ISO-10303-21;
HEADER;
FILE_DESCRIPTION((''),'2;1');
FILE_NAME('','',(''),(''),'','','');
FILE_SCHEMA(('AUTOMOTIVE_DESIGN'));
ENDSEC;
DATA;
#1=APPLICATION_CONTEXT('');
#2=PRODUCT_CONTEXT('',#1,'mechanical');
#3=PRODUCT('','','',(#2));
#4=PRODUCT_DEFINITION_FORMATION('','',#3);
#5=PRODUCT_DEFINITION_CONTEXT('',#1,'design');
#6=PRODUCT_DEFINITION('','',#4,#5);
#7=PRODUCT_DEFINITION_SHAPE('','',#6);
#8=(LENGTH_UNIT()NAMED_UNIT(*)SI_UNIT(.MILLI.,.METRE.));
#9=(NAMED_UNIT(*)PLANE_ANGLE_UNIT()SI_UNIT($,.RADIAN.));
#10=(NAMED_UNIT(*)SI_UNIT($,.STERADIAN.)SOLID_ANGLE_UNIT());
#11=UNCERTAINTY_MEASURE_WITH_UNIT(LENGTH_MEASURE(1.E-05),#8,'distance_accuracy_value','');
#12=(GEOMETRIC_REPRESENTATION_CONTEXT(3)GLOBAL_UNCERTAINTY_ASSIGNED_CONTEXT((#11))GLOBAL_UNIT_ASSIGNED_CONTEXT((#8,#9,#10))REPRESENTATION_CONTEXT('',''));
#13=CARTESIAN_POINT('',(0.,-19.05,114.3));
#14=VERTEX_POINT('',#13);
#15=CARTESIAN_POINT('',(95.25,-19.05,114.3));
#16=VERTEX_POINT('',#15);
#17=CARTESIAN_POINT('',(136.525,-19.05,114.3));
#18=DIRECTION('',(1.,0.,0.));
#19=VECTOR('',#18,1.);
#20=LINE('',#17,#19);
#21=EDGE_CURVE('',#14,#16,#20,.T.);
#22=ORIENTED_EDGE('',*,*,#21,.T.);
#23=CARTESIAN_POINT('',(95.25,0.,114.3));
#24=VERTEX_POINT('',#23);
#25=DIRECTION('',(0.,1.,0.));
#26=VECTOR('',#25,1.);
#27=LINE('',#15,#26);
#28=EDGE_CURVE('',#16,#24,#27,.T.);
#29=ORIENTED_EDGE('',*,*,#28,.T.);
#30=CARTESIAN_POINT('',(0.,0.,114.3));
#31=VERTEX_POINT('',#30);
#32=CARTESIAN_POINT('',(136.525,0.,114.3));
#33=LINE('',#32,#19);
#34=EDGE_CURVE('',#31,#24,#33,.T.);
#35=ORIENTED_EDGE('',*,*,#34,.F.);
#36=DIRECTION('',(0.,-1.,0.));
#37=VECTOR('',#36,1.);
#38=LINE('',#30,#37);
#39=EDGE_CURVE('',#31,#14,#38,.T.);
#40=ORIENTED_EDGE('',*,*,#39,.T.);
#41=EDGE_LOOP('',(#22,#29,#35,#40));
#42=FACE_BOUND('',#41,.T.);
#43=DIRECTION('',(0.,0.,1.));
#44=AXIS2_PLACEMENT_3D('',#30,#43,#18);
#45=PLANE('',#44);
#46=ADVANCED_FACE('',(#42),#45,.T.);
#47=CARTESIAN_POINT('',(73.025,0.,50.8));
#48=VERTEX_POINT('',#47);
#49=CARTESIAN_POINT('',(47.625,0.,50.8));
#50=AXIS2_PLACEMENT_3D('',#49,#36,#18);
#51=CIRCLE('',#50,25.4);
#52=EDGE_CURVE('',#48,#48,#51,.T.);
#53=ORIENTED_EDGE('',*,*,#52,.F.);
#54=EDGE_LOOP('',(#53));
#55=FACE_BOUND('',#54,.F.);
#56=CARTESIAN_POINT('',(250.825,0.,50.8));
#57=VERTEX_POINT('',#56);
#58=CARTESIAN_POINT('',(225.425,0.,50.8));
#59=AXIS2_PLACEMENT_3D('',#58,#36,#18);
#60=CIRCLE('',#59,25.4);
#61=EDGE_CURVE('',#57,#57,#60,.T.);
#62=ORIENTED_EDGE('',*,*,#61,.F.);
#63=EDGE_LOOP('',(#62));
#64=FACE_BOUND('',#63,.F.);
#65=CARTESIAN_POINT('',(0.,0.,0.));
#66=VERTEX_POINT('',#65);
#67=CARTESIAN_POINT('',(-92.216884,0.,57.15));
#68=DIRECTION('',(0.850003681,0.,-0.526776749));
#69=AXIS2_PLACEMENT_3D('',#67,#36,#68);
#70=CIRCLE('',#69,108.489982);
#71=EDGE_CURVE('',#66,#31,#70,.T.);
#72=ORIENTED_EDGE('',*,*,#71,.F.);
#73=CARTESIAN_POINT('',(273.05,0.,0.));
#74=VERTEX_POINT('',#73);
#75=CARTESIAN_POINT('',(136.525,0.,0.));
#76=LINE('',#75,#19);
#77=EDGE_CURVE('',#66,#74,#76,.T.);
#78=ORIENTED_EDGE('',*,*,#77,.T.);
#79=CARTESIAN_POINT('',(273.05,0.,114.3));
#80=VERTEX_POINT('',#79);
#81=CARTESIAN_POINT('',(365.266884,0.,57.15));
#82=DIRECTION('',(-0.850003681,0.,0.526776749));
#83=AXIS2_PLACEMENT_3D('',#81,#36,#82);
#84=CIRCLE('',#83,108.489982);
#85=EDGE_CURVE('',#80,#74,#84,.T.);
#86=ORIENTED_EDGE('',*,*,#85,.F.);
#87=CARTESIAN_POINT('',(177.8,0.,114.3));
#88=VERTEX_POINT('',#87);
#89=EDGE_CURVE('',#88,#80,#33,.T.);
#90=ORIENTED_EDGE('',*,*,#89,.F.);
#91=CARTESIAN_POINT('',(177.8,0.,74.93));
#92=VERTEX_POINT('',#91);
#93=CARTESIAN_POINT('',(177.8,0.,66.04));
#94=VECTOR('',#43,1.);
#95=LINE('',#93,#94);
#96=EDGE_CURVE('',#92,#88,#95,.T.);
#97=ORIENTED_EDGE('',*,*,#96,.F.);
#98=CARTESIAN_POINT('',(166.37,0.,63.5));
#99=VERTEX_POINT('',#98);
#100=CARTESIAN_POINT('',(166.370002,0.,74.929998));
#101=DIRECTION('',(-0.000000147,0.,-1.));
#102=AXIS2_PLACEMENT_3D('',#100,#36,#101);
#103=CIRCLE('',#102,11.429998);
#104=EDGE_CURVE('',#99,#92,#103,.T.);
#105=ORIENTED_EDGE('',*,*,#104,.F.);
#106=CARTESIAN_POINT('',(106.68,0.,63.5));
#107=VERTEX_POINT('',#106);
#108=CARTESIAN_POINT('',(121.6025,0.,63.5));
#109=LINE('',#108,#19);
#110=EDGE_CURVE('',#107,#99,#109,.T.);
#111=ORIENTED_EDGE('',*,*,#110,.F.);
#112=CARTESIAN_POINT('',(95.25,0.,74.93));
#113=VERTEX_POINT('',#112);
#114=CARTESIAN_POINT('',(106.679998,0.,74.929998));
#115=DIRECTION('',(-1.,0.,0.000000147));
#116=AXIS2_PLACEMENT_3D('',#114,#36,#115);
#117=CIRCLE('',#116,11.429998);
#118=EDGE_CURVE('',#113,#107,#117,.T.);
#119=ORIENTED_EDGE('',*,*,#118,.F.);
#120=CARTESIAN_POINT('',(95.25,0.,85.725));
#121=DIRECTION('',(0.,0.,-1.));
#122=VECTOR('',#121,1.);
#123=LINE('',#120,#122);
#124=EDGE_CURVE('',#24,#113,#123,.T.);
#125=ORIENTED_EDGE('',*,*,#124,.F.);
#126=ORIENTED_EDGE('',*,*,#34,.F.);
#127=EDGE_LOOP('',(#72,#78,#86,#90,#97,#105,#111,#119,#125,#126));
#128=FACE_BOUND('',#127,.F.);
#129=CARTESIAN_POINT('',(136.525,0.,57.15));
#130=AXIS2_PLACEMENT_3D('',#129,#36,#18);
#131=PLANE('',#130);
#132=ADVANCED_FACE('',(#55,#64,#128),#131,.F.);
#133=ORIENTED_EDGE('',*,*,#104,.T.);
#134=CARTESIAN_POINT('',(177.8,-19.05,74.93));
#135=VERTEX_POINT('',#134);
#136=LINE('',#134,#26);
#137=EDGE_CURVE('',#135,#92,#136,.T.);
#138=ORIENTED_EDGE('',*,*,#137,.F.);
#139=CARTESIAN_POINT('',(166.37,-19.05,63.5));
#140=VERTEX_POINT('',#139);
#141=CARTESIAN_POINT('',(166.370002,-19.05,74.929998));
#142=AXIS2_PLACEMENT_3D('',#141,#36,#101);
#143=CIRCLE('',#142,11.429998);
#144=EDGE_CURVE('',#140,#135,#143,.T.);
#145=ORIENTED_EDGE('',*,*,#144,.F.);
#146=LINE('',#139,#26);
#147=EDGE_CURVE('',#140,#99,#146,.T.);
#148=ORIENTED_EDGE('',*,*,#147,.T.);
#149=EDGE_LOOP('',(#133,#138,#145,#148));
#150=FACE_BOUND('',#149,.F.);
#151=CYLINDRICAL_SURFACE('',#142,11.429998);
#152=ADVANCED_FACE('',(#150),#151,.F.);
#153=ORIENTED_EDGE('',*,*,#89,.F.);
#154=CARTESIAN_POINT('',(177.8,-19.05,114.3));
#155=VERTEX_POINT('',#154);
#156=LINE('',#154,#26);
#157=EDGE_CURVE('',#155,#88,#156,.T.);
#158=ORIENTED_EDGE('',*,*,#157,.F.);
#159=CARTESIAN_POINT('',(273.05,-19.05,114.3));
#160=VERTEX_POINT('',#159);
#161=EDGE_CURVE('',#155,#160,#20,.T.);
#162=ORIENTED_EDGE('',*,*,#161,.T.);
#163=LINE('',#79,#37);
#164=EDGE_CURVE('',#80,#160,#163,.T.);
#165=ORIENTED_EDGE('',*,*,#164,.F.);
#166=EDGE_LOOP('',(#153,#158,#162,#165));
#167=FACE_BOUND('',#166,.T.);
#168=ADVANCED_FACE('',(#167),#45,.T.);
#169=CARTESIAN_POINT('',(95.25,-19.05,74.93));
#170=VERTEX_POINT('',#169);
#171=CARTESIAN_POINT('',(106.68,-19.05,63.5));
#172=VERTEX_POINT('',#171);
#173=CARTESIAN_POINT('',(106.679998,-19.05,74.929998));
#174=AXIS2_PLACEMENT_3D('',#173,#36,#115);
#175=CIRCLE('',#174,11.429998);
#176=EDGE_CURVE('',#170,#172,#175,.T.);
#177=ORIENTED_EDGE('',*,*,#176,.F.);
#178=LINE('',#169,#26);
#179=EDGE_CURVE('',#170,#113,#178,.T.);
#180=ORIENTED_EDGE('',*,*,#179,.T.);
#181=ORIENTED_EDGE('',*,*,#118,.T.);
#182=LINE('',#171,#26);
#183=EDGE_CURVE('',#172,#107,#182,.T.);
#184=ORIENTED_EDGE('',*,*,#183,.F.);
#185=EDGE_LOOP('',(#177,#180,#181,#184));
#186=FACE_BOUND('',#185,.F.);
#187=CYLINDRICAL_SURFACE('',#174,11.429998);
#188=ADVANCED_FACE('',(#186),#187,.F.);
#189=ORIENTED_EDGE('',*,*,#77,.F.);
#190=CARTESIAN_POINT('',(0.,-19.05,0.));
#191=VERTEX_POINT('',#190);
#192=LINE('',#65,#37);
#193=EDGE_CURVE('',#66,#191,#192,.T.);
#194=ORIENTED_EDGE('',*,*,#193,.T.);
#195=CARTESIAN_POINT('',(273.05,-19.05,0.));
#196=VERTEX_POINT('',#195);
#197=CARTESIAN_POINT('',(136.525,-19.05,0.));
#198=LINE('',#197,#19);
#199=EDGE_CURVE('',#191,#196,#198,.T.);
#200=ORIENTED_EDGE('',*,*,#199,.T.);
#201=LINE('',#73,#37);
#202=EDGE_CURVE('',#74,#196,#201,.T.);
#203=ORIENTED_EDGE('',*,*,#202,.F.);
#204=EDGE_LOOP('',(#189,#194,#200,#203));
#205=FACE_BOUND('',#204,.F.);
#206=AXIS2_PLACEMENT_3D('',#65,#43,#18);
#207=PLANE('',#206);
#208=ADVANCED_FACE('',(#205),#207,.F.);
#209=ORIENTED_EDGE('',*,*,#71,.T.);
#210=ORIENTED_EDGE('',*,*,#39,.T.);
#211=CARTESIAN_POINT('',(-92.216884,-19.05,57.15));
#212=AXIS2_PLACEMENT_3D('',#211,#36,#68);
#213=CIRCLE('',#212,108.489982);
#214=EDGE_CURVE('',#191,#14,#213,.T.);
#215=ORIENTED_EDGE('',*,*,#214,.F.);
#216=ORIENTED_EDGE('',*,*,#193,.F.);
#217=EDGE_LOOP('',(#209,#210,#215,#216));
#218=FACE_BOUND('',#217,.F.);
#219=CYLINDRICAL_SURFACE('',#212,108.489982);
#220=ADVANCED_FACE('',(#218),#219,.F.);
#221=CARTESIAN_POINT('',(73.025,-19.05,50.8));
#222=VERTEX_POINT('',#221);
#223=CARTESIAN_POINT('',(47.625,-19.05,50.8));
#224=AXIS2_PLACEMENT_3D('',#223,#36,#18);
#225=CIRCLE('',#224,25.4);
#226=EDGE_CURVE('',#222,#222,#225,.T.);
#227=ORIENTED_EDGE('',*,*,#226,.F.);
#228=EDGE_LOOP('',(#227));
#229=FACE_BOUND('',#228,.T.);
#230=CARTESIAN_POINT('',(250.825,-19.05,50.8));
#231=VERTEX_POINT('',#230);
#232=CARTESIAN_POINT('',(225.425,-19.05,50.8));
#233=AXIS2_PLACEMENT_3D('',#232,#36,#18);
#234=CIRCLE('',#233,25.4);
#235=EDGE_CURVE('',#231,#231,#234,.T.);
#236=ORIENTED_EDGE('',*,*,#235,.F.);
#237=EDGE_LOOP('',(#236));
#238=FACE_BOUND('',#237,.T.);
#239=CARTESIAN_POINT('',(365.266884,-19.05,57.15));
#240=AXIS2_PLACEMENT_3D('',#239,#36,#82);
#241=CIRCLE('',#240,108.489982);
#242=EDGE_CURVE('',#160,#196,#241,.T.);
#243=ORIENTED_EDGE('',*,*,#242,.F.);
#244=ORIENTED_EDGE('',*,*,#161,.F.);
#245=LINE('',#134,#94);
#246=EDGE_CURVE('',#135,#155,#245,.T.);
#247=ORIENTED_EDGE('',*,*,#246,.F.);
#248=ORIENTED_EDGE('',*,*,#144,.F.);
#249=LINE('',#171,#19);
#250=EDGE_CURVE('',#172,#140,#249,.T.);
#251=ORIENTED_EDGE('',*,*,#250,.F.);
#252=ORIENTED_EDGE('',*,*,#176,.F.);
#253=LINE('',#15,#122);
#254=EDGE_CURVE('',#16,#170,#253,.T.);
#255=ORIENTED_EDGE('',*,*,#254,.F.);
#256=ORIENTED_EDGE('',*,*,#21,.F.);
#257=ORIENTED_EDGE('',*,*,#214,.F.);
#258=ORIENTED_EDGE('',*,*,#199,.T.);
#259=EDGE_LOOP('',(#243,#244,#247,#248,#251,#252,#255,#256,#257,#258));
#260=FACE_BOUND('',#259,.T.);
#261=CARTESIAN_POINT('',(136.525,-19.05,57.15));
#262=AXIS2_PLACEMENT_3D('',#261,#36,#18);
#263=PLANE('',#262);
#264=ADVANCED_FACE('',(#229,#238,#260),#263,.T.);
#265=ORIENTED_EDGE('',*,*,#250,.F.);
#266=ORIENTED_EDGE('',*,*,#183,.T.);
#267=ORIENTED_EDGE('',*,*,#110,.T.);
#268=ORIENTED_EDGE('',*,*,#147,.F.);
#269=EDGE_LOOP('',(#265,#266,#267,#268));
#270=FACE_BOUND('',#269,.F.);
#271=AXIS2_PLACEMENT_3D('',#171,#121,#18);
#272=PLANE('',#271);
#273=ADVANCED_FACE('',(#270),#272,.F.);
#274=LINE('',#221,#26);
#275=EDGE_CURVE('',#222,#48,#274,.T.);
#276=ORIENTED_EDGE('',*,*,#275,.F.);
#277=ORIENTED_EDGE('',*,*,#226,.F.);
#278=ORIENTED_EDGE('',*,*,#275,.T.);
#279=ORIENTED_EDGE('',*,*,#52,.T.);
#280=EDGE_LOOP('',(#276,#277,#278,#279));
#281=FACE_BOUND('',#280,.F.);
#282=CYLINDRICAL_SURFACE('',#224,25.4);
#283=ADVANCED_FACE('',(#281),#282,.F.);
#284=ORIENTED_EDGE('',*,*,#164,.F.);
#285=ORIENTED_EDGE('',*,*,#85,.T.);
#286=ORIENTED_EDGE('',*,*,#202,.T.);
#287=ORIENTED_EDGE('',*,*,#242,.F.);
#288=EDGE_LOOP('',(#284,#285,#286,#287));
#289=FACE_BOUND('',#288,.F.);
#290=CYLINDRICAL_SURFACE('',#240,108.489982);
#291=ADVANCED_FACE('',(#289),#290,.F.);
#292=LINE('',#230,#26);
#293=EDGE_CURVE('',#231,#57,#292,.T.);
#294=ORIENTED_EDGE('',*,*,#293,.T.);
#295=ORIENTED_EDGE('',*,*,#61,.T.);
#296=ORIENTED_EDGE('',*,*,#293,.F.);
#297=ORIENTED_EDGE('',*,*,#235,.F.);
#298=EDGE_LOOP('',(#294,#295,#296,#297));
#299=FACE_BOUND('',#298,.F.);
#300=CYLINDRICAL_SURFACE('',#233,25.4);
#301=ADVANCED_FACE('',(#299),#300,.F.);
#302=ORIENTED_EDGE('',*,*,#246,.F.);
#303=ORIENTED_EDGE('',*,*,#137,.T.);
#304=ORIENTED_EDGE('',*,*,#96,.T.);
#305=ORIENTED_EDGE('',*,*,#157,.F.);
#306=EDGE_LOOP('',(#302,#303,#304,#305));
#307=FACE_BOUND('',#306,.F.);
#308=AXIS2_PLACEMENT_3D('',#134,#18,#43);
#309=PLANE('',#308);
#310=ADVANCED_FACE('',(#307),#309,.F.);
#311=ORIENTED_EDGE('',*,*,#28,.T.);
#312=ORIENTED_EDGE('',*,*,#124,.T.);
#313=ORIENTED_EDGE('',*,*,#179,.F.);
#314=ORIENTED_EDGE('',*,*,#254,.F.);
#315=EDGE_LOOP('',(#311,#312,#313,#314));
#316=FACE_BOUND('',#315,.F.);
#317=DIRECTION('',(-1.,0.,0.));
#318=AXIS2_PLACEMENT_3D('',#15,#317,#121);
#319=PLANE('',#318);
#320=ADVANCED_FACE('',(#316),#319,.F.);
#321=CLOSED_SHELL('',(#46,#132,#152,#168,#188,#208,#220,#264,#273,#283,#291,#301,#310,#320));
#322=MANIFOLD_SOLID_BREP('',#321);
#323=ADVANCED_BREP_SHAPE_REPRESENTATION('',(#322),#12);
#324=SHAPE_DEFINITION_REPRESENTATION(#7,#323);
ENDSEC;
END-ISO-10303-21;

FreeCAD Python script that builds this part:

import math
import FreeCAD as App
import Part
import Sketcher
from FreeCAD import Vector
Q = App.Units.Quantity


def add_polygon(sketch, points):
    """Adds a closed chain of lines whose ends are joined by coincident constraints."""
    first, n = sketch.GeometryCount, len(points)
    for a, b in zip(points, points[1:] + points[:1]):
        sketch.addGeometry(Part.LineSegment(App.Vector(*a, 0), App.Vector(*b, 0)), False)
    for i in range(n):
        sketch.addConstraint(Sketcher.Constraint("Coincident", first + i, 2, first + (i + 1) % n, 1))

doc = App.newDocument("Part")
body = doc.addObject("PartDesign::Body", "Body")

# Sketch on XZ plane
sketch1 = doc.addObject("Sketcher::SketchObject", "Sketch")
body.addObject(sketch1)
sketch1.AttachmentSupport = (doc.XZ_Plane, [""])
sketch1.MapMode = "FlatFace"
add_polygon(sketch1, [(0, 114), (0, 0), (273, 0), (273, 114)])  # lines 0-3
sketch1.addConstraint(Sketcher.Constraint("Vertical", 0))
sketch1.addConstraint(Sketcher.Constraint("Horizontal", 1))
sketch1.addConstraint(Sketcher.Constraint("Vertical", 2))
sketch1.addConstraint(Sketcher.Constraint("Horizontal", 3))
sketch1.addConstraint(Sketcher.Constraint("Coincident", 0, 2, -1, 1))
sketch1.addConstraint(Sketcher.Constraint("DistanceY", 0, 2, 0, 1, Q("4.5 in")))
sketch1.addConstraint(Sketcher.Constraint("DistanceX", 1, 1, 1, 2, Q("10.75 in")))
pad1 = doc.addObject("PartDesign::Pad", "Pad")
body.addObject(pad1)
pad1.Profile = sketch1
pad1.Length = Q("0.75 in")

# Sketch on XZ plane
sketch2 = doc.addObject("Sketcher::SketchObject", "Sketch001")
body.addObject(sketch2)
sketch2.AttachmentSupport = (doc.XZ_Plane, [""])
sketch2.MapMode = "FlatFace"
sketch2.AttachmentOffset = App.Placement(Vector(0, 0, 0.75 * 25.4), App.Rotation())
sketch2.addGeometry(Part.Circle(Vector(48, 51, 0), Vector(0, 0, 1), 25), False)
sketch2.addGeometry(Part.Circle(Vector(225, 51, 0), Vector(0, 0, 1), 25), False)
sketch2.addConstraint(Sketcher.Constraint("Equal", 0, 1))
sketch2.addConstraint(Sketcher.Constraint("Horizontal", 0, 3, 1, 3))
sketch2.addConstraint(Sketcher.Constraint("Diameter", 0, Q("2 in")))
sketch2.addConstraint(Sketcher.Constraint("DistanceY", -1, 1, 0, 3, Q("2 in")))
sketch2.addConstraint(Sketcher.Constraint("DistanceX", 0, 3, 1, 3, Q("7 in")))
sketch2.addConstraint(Sketcher.Constraint("DistanceX", -1, 1, 0, 3, Q("1.875 in")))
pocket1 = doc.addObject("PartDesign::Pocket", "Pocket")
body.addObject(pocket1)
pocket1.Profile = sketch2
pocket1.Length = Q("1 in")

# Sketch on XZ plane
sketch3 = doc.addObject("Sketcher::SketchObject", "Sketch002")
body.addObject(sketch3)
sketch3.AttachmentSupport = (doc.XZ_Plane, [""])
sketch3.MapMode = "FlatFace"
sketch3.AttachmentOffset = App.Placement(Vector(0, 0, 0.75 * 25.4), App.Rotation())
sketch3.addGeometry(Part.LineSegment(Vector(178, 114, 0), Vector(95, 114, 0)), False)
sketch3.addGeometry(Part.LineSegment(Vector(95, 114, 0), Vector(95, 75, 0)), False)
sketch3.addGeometry(Part.ArcOfCircle(Part.Circle(Vector(107, 75, 0), Vector(0, 0, 1), 11), math.radians(180), math.radians(270)), False)
sketch3.addGeometry(Part.LineSegment(Vector(107, 64, 0), Vector(166, 64, 0)), False)
sketch3.addGeometry(Part.ArcOfCircle(Part.Circle(Vector(166, 75, 0), Vector(0, 0, 1), 11), math.radians(-90), math.radians(0)), False)
sketch3.addGeometry(Part.LineSegment(Vector(178, 75, 0), Vector(178, 114, 0)), False)
sketch3.addConstraint(Sketcher.Constraint("Coincident", 0, 2, 1, 1))
sketch3.addConstraint(Sketcher.Constraint("Tangent", 1, 2, 2, 1))
sketch3.addConstraint(Sketcher.Constraint("Tangent", 2, 2, 3, 1))
sketch3.addConstraint(Sketcher.Constraint("Tangent", 3, 2, 4, 1))
sketch3.addConstraint(Sketcher.Constraint("Tangent", 4, 2, 5, 1))
sketch3.addConstraint(Sketcher.Constraint("Coincident", 5, 2, 0, 1))
sketch3.addConstraint(Sketcher.Constraint("Horizontal", 0))
sketch3.addConstraint(Sketcher.Constraint("Vertical", 1))
sketch3.addConstraint(Sketcher.Constraint("Horizontal", 3))
sketch3.addConstraint(Sketcher.Constraint("Vertical", 5))
sketch3.addConstraint(Sketcher.Constraint("Equal", 2, 4))
sketch3.addConstraint(Sketcher.Constraint("Radius", 2, Q("0.4499999 in")))
sketch3.addConstraint(Sketcher.Constraint("DistanceX", -1, 1, 4, 2, Q("7 in")))
sketch3.addConstraint(Sketcher.Constraint("DistanceY", 2, 2, 0, 2, Q("2 in")))
sketch3.addConstraint(Sketcher.Constraint("DistanceX", 0, 2, 0, 1, Q("3.25 in")))
sketch3.addConstraint(Sketcher.Constraint("DistanceY", -1, 1, 0, 2, Q("4.5 in")))
pocket2 = doc.addObject("PartDesign::Pocket", "Pocket001")
body.addObject(pocket2)
pocket2.Profile = sketch3
pocket2.Length = Q("1 in")

# Sketch on XZ plane
sketch4 = doc.addObject("Sketcher::SketchObject", "Sketch003")
body.addObject(sketch4)
sketch4.AttachmentSupport = (doc.XZ_Plane, [""])
sketch4.MapMode = "FlatFace"
sketch4.AttachmentOffset = App.Placement(Vector(0, 0, 0.75 * 25.4), App.Rotation())
sketch4.addGeometry(Part.LineSegment(Vector(0, 114, 0), Vector(0, 0, 0)), False)
sketch4.addGeometry(Part.ArcOfCircle(Part.Circle(Vector(-92, 57, 0), Vector(0, 0, 1), 108), math.radians(-32), math.radians(32)), False)
sketch4.addGeometry(Part.ArcOfCircle(Part.Circle(Vector(365, 57, 0), Vector(0, 0, 1), 108), math.radians(148), math.radians(212)), False)
sketch4.addGeometry(Part.LineSegment(Vector(273, 0, 0), Vector(273, 114, 0)), False)
sketch4.addConstraint(Sketcher.Constraint("Coincident", 0, 1, 1, 2))
sketch4.addConstraint(Sketcher.Constraint("Coincident", 1, 1, 0, 2))
sketch4.addConstraint(Sketcher.Constraint("Coincident", 2, 1, 3, 2))
sketch4.addConstraint(Sketcher.Constraint("Coincident", 3, 1, 2, 2))
sketch4.addConstraint(Sketcher.Constraint("Vertical", 0))
sketch4.addConstraint(Sketcher.Constraint("Vertical", 3))
sketch4.addConstraint(Sketcher.Constraint("Coincident", 1, 1, -1, 1))
sketch4.addConstraint(Sketcher.Constraint("Equal", 1, 2))
sketch4.addConstraint(Sketcher.Constraint("PointOnObject", 3, 1, -1))
sketch4.addConstraint(Sketcher.Constraint("Horizontal", 1, 3, 2, 3))
sketch4.addConstraint(Sketcher.Constraint("DistanceY", 0, 2, 0, 1, Q("4.5 in")))
sketch4.addConstraint(Sketcher.Constraint("DistanceX", -1, 1, 2, 1, Q("10.75 in")))
sketch4.addConstraint(Sketcher.Constraint("Radius", 1, Q("108.489982 mm")))
pocket3 = doc.addObject("PartDesign::Pocket", "Pocket002")
body.addObject(pocket3)
pocket3.Profile = sketch4
pocket3.Length = Q("1 in")

doc.recompute()
